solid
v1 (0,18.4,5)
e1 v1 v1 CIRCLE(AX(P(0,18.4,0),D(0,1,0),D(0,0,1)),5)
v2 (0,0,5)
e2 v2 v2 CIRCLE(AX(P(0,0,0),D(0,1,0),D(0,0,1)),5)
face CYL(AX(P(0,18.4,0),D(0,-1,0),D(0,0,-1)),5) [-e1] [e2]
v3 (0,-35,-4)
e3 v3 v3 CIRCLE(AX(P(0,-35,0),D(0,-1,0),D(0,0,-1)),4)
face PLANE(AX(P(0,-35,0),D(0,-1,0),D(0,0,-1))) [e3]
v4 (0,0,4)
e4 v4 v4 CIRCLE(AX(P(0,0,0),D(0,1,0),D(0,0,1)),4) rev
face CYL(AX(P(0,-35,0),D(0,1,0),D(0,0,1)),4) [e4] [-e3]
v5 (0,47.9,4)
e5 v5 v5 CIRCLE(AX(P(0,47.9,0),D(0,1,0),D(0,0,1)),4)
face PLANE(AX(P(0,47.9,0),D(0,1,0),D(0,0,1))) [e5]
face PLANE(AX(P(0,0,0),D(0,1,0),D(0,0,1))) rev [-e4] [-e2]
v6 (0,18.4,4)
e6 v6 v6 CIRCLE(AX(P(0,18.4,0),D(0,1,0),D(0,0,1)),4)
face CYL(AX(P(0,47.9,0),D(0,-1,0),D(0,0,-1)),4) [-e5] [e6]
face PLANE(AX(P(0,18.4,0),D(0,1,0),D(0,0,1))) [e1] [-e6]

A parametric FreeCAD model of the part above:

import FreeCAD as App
import Part
import Sketcher
from FreeCAD import Vector
Q = App.Units.Quantity

doc = App.newDocument("Part")
params = doc.addObject("Spreadsheet::Sheet", "Params")
for row, (alias, value) in enumerate([
    ("sketch1_diameter", "10 mm"),
    ("pad1_length", "18.4 mm"),
    ("sketch2_diameter", "8 mm"),
    ("pad2_length", "29.5 mm"),
    ("sketch3_diameter", "8 mm"),
    ("pad3_length", "35 mm"),
], start=1):
    params.set(f"A{row}", alias)
    params.set(f"B{row}", "=" + value)
    params.setAlias(f"B{row}", alias)

body = doc.addObject("PartDesign::Body", "Body")

# Sketch on XZ plane
sketch1 = body.newObject("Sketcher::SketchObject", "Sketch")
sketch1.AttachmentSupport = (doc.getObject("XZ_Plane"), [""])
sketch1.MapMode = "FlatFace"
sketch1.addGeometry(Part.Circle(Vector(0, 0, 0), Vector(0, 0, 1), 5), False)
sketch1.addConstraint(Sketcher.Constraint("Coincident", 0, 3, -1, 1))
sketch1.addConstraint(Sketcher.Constraint("Diameter", 0, Q("10 mm")))
sketch1.setExpression("Constraints[1]", "Params.sketch1_diameter")
pad1 = body.newObject("PartDesign::Pad", "Pad")
pad1.Profile = sketch1
pad1.setExpression("Length", "Params.pad1_length")
pad1.Reversed = True

# Sketch on XZ plane
sketch2 = body.newObject("Sketcher::SketchObject", "Sketch001")
sketch2.AttachmentSupport = (doc.getObject("XZ_Plane"), [""])
sketch2.MapMode = "FlatFace"
sketch2.AttachmentOffset = App.Placement(Vector(0, 0, -18.4), App.Rotation())
sketch2.addGeometry(Part.Circle(Vector(0, 0, 0), Vector(0, 0, 1), 4), False)
sketch2.addConstraint(Sketcher.Constraint("Coincident", 0, 3, -1, 1))
sketch2.addConstraint(Sketcher.Constraint("Diameter", 0, Q("8 mm")))
sketch2.setExpression("Constraints[1]", "Params.sketch2_diameter")
pad2 = body.newObject("PartDesign::Pad", "Pad001")
pad2.Profile = sketch2
pad2.setExpression("Length", "Params.pad2_length")
pad2.Reversed = True

# Sketch on XZ plane
sketch3 = body.newObject("Sketcher::SketchObject", "Sketch002")
sketch3.AttachmentSupport = (doc.getObject("XZ_Plane"), [""])
sketch3.MapMode = "FlatFace"
sketch3.addGeometry(Part.Circle(Vector(0, 0, 0), Vector(0, 0, 1), 4), False)
sketch3.addConstraint(Sketcher.Constraint("Coincident", 0, 3, -1, 1))
sketch3.addConstraint(Sketcher.Constraint("Diameter", 0, Q("8 mm")))
sketch3.setExpression("Constraints[1]", "Params.sketch3_diameter")
pad3 = body.newObject("PartDesign::Pad", "Pad002")
pad3.Profile = sketch3
pad3.setExpression("Length", "Params.pad3_length")

doc.recompute()
